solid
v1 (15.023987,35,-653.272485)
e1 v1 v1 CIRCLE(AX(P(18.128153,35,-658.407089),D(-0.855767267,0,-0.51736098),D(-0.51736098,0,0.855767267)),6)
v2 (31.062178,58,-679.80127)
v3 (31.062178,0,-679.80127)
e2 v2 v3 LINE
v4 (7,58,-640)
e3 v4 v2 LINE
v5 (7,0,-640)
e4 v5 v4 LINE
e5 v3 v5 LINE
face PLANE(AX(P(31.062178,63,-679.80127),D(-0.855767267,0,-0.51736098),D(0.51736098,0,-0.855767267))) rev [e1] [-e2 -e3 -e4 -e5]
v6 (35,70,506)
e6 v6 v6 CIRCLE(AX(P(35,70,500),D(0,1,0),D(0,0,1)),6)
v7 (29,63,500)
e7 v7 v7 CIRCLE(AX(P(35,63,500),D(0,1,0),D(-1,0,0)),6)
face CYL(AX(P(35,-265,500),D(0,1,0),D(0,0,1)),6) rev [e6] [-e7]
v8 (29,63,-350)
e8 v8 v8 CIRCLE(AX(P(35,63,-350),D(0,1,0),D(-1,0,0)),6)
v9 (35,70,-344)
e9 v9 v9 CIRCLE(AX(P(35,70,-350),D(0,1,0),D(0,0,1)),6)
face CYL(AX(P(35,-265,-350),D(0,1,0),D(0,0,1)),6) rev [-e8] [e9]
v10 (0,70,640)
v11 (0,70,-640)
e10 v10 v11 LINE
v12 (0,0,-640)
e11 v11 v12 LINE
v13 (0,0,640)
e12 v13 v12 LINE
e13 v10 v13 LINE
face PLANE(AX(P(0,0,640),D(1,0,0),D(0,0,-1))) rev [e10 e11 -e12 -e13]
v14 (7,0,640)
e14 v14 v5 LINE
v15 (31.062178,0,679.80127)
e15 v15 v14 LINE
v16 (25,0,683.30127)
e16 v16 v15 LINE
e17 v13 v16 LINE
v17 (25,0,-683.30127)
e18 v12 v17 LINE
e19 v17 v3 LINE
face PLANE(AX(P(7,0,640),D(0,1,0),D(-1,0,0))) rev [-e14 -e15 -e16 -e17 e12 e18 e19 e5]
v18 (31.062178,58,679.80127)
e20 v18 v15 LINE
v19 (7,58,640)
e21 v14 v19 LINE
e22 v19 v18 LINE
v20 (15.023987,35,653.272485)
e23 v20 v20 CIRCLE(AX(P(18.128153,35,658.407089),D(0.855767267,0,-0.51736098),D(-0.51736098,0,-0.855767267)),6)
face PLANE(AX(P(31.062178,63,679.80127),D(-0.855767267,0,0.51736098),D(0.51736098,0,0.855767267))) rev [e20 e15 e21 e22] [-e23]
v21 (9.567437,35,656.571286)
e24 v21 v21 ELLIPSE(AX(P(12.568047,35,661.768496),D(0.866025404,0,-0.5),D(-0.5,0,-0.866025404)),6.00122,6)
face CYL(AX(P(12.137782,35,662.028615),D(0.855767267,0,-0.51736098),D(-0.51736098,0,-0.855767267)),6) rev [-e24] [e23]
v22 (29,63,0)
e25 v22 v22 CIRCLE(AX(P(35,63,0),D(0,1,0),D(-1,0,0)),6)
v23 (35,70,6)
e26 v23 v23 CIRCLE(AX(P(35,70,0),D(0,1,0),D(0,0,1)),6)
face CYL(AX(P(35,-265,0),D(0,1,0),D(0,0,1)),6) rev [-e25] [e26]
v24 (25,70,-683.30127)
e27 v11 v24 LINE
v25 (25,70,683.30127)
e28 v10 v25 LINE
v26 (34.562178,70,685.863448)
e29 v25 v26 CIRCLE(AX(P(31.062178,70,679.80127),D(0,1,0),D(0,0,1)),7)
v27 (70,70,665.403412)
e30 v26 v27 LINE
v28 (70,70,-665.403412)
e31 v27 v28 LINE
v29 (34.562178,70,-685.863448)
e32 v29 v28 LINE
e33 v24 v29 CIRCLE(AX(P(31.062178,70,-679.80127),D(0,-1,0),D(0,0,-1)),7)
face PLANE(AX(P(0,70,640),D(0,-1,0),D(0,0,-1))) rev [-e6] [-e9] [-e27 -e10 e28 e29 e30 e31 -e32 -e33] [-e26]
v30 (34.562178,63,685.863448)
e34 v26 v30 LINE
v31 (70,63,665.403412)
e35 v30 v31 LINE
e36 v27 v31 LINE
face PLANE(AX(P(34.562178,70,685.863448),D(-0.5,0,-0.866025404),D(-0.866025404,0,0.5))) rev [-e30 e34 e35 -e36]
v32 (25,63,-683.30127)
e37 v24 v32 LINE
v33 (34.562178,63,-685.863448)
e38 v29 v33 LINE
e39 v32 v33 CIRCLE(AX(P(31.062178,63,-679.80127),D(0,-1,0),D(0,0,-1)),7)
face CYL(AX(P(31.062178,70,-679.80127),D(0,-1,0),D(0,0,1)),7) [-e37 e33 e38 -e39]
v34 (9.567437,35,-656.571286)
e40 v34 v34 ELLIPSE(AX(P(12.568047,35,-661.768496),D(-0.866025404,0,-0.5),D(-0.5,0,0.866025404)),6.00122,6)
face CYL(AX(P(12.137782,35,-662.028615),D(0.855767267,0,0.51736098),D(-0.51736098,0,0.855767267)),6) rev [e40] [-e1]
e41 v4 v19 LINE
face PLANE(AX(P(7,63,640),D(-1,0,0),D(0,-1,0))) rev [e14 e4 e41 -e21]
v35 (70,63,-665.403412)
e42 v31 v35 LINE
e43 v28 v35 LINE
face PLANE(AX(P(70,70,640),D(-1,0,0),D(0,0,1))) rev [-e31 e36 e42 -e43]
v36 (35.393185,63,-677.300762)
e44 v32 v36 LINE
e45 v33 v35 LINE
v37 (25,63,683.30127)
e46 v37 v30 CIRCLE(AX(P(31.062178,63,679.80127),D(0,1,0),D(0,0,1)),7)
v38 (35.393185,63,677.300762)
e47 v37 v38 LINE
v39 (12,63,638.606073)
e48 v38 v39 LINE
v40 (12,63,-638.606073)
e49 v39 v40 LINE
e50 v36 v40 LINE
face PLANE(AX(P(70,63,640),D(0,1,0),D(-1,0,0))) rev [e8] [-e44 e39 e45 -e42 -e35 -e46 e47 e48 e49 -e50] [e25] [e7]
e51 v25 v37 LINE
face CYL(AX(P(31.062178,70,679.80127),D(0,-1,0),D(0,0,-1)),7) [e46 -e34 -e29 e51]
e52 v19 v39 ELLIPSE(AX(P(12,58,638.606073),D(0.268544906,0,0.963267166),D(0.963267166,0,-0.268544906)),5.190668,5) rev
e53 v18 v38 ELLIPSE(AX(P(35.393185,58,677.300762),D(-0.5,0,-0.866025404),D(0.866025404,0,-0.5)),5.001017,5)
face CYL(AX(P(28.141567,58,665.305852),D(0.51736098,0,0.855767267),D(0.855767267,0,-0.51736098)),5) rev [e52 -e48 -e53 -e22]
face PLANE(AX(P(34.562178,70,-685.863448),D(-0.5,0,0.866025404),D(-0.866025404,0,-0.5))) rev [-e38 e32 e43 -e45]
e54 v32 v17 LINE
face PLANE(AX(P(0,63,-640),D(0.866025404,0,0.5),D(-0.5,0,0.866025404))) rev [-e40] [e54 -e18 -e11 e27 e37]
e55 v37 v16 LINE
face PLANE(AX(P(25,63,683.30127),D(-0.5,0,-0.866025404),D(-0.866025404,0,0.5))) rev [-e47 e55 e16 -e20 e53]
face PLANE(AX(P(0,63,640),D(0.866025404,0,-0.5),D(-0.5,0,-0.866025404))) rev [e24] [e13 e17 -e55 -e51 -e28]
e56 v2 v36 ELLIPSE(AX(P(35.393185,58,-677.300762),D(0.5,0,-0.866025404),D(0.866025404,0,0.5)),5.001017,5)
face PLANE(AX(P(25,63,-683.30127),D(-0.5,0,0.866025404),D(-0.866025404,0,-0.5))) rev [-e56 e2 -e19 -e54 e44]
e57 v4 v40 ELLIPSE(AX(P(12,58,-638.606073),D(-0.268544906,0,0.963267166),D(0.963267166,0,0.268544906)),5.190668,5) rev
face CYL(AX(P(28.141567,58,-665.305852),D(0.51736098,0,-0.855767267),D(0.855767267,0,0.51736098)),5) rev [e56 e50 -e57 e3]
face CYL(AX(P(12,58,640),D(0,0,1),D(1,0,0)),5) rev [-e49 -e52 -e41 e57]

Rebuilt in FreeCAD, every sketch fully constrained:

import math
import FreeCAD as App
import Part
import Sketcher

V = App.Vector
Q = App.Units.Quantity


def edges_at(feature, points):
    """Names of the edges that pass closest to the given points."""
    edges = feature.Shape.Edges
    near = lambda p: min(range(len(edges)), key=lambda i: edges[i].distToShape(Part.Vertex(*p))[0])
    return sorted({f"Edge{near(p) + 1}" for p in points})


def add_polygon(sketch, points):
    """Adds a closed chain of lines whose ends are joined by coincident constraints."""
    first, n = sketch.GeometryCount, len(points)
    for a, b in zip(points, points[1:] + points[:1]):
        sketch.addGeometry(Part.LineSegment(App.Vector(*a, 0), App.Vector(*b, 0)), False)
    for i in range(n):
        sketch.addConstraint(Sketcher.Constraint("Coincident", first + i, 2, first + (i + 1) % n, 1))

doc = App.newDocument("Part")
body = doc.addObject("PartDesign::Body", "Body")

# Sketch on XY plane
sketch1 = body.newObject("Sketcher::SketchObject", "Sketch")
sketch1.AttachmentSupport = (doc.getObject("XY_Plane"), [""])
sketch1.MapMode = "FlatFace"
add_polygon(sketch1, [(0, 70), (0, 0), (7, 0), (7, 63), (70, 63), (70, 70)])  # lines 0-5
sketch1.addConstraint(Sketcher.Constraint("Vertical", 0))
sketch1.addConstraint(Sketcher.Constraint("Horizontal", 1))
sketch1.addConstraint(Sketcher.Constraint("Vertical", 2))
sketch1.addConstraint(Sketcher.Constraint("Horizontal", 3))
sketch1.addConstraint(Sketcher.Constraint("Vertical", 4))
sketch1.addConstraint(Sketcher.Constraint("Horizontal", 5))
sketch1.addConstraint(Sketcher.Constraint("Coincident", 0, 2, -1, 1))
sketch1.addConstraint(Sketcher.Constraint("Equal", 5, 0))
sketch1.addConstraint(Sketcher.Constraint("Equal", 3, 2))
sketch1.addConstraint(Sketcher.Constraint("DistanceX", 1, 1, 1, 2, 7.0))
sketch1.addConstraint(Sketcher.Constraint("DistanceX", 3, 1, 3, 2, 63.0))
pad1 = body.newObject("PartDesign::Pad", "Pad")
pad1.Profile = sketch1
pad1.Length = 640

# Sketch on XZ plane
sketch2 = body.newObject("Sketcher::SketchObject", "Sketch001")
sketch2.AttachmentSupport = (doc.getObject("XZ_Plane"), [""])
sketch2.MapMode = "FlatFace"
add_polygon(sketch2, [(0, 640), (25, 683), (31, 680), (7, 640)])  # lines 0-3
sketch2.addConstraint(Sketcher.Constraint("Horizontal", 3))
sketch2.addConstraint(Sketcher.Constraint("PointOnObject", 3, 2, -2))
sketch2.addConstraint(Sketcher.Constraint("Perpendicular", 0, 1))
sketch2.addConstraint(Sketcher.Constraint("DistanceX", 3, 2, 3, 1, 7.0))
sketch2.addConstraint(Sketcher.Constraint("Angle", 0, Q("60 deg")))
sketch2.addConstraint(Sketcher.Constraint("Distance", 0, 50.0))
sketch2.addConstraint(Sketcher.Constraint("Distance", 1, 7.0))
sketch2.addConstraint(Sketcher.Constraint("DistanceY", -1, 1, 2, 2, 640.0))
pad2 = body.newObject("PartDesign::Pad", "Pad001")
pad2.Profile = sketch2
pad2.Length = 63
pad2.Reversed = True

# Sketch on XZ plane
sketch3 = body.newObject("Sketcher::SketchObject", "Sketch002")
sketch3.AttachmentSupport = (doc.getObject("XZ_Plane"), [""])
sketch3.MapMode = "FlatFace"
sketch3.AttachmentOffset = App.Placement(V(0, 0, -63), App.Rotation())
sketch3.addGeometry(Part.LineSegment(V(0, 640, 0), V(25, 683, 0)), False)
sketch3.addGeometry(Part.ArcOfCircle(Part.Circle(V(31, 680, 0), V(0, 0, 1), 7), math.radians(60), math.radians(150)), False)
sketch3.addGeometry(Part.LineSegment(V(35, 686, 0), V(70, 665, 0)), False)
sketch3.addGeometry(Part.LineSegment(V(70, 665, 0), V(70, 640, 0)), False)
sketch3.addGeometry(Part.LineSegment(V(70, 640, 0), V(0, 640, 0)), False)
sketch3.addConstraint(Sketcher.Constraint("Tangent", 0, 2, 1, 2))
sketch3.addConstraint(Sketcher.Constraint("Tangent", 1, 1, 2, 1))
sketch3.addConstraint(Sketcher.Constraint("Coincident", 2, 2, 3, 1))
sketch3.addConstraint(Sketcher.Constraint("Coincident", 3, 2, 4, 1))
sketch3.addConstraint(Sketcher.Constraint("Coincident", 4, 2, 0, 1))
sketch3.addConstraint(Sketcher.Constraint("Vertical", 3))
sketch3.addConstraint(Sketcher.Constraint("Horizontal", 4))
sketch3.addConstraint(Sketcher.Constraint("PointOnObject", 4, 2, -2))
sketch3.addConstraint(Sketcher.Constraint("Perpendicular", 0, 2))
sketch3.addConstraint(Sketcher.Constraint("Radius", 1, 7.0))
sketch3.addConstraint(Sketcher.Constraint("DistanceX", 4, 2, 4, 1, 70.0))
sketch3.addConstraint(Sketcher.Constraint("Angle", 0, Q("60 deg")))
sketch3.addConstraint(Sketcher.Constraint("Distance", 0, 50.0))
sketch3.addConstraint(Sketcher.Constraint("DistanceY", -1, 1, 3, 2, 640.0))
pad3 = body.newObject("PartDesign::Pad", "Pad002")
pad3.Profile = sketch3
pad3.Length = 7
pad3.Reversed = True

# Sketch on an angled plane
sketch4 = body.newObject("Sketcher::SketchObject", "Sketch003")
sketch4.Placement = App.Placement(V(-278.227616, 0, 168.204742), App.Rotation(V(-0.51736098, 0, -0.855767267), V(0, 0.999999999, 0), V(0.855767267, 0, -0.51736098), "ZXY"))
sketch4.addGeometry(Part.Circle(V(-573, 35, 0), V(0, 0, 1), 6), False)
sketch4.addConstraint(Sketcher.Constraint("Diameter", 0, 12.0))
sketch4.addConstraint(Sketcher.Constraint("DistanceY", -1, 1, 0, 3, 35.0))
sketch4.addConstraint(Sketcher.Constraint("DistanceX", 0, 3, -1, 1, 572.822034))
pocket1 = body.newObject("PartDesign::Pocket", "Pocket")
pocket1.Profile = sketch4
pocket1.Length = 7
doc.recompute()

fillet = body.newObject("PartDesign::Fillet", "Fillet")
fillet.Base = (pocket1, edges_at(pocket1, [(7, 63, 320), (19.031, 63, 659.901)]))
fillet.Radius = 5
body2 = doc.addObject("PartDesign::Body", "Body001")
doc.recompute()

body2.BaseFeature = body
doc.recompute()

mirroring = doc.addObject("Part::Mirroring", "Mirroring")
mirroring.Source = body
mirroring.Base = V(0, 0, 0)
mirroring.Normal = V(0, 0, 1)
body3 = doc.addObject("PartDesign::Body", "Body002")
body3.BaseFeature = mirroring
boolean = body2.newObject("PartDesign::Boolean", "Boolean")
boolean.Type = "Fuse"
boolean.addObjects([body3])
doc.recompute()

# Sketch on XZ plane
sketch5 = body2.newObject("Sketcher::SketchObject", "Sketch004")
sketch5.AttachmentSupport = (doc.getObject("XZ_Plane001"), [""])
sketch5.MapMode = "FlatFace"
sketch5.AttachmentOffset = App.Placement(V(0, 0, -70), App.Rotation())
sketch5.addGeometry(Part.Circle(V(35, 0, 0), V(0, 0, 1), 6), False)
sketch5.addGeometry(Part.Circle(V(35, -350, 0), V(0, 0, 1), 6), False)
sketch5.addGeometry(Part.Circle(V(35, 500, 0), V(0, 0, 1), 6), False)
sketch5.addConstraint(Sketcher.Constraint("Equal", 0, 1))
sketch5.addConstraint(Sketcher.Constraint("Equal", 1, 2))
sketch5.addConstraint(Sketcher.Constraint("PointOnObject", 0, 3, -1))
sketch5.addConstraint(Sketcher.Constraint("Vertical", 0, 3, 1, 3))
sketch5.addConstraint(Sketcher.Constraint("Vertical", 1, 3, 2, 3))
sketch5.addConstraint(Sketcher.Constraint("Diameter", 0, 12.0))
sketch5.addConstraint(Sketcher.Constraint("DistanceX", -1, 1, 0, 3, 35.0))
sketch5.addConstraint(Sketcher.Constraint("DistanceY", 1, 3, -1, 1, 350.0))
sketch5.addConstraint(Sketcher.Constraint("DistanceY", -1, 1, 2, 3, 500.0))
pocket2 = body2.newObject("PartDesign::Pocket", "Pocket001")
pocket2.Profile = sketch5
pocket2.Length = 335
pocket2.Reversed = True
mirroring.Visibility = False

doc.recompute()
